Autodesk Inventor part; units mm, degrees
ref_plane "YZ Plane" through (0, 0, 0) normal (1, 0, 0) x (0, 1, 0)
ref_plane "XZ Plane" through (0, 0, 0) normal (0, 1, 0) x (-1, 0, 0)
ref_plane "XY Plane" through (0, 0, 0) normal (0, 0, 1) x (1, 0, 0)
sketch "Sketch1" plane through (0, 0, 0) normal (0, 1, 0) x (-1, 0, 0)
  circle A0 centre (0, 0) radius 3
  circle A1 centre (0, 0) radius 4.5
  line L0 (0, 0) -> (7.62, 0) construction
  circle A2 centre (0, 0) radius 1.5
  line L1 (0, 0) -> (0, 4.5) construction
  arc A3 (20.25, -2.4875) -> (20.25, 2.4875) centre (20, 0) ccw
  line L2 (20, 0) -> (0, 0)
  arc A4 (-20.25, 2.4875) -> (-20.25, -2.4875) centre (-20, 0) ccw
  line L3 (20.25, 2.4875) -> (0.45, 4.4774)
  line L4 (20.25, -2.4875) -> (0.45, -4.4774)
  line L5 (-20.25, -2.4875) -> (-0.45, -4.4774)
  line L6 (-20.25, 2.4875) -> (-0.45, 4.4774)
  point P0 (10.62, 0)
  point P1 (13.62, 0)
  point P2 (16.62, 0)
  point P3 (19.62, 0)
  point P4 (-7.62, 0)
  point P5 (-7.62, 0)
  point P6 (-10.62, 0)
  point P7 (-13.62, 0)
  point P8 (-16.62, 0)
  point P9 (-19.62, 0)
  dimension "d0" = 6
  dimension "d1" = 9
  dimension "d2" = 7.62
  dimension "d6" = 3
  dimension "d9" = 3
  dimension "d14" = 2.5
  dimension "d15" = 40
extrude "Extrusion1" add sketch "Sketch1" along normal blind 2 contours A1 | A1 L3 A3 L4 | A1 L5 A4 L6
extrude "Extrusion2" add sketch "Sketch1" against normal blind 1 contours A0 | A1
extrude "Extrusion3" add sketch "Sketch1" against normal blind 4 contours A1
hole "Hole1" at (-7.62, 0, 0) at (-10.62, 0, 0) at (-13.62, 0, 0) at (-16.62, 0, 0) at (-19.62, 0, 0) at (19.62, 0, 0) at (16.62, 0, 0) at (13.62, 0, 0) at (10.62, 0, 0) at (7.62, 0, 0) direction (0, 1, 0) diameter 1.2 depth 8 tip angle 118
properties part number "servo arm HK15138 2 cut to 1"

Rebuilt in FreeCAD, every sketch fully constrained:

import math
import FreeCAD as App
import Part
import Sketcher
from FreeCAD import Vector
Q = App.Units.Quantity

doc = App.newDocument("Part")
body = doc.addObject("PartDesign::Body", "Body")

# Sketch on XZ plane
sketch1 = body.newObject("Sketcher::SketchObject", "Sketch")
sketch1.AttachmentSupport = (doc.getObject("XZ_Plane"), [""])
sketch1.MapMode = "FlatFace"
sketch1.addGeometry(Part.ArcOfCircle(Part.Circle(Vector(0, 0, 0), Vector(0, 0, 1), 4.5), math.radians(-95.739226), math.radians(-84.260774)), False)
sketch1.addGeometry(Part.LineSegment(Vector(-0.45, -4.4774, 0), Vector(-20.25, -2.4875, 0)), False)
sketch1.addGeometry(Part.ArcOfCircle(Part.Circle(Vector(-20, 0, 0), Vector(0, 0, 1), 2.500031), math.radians(95.739098), math.radians(264.260902)), False)
sketch1.addGeometry(Part.LineSegment(Vector(-20.25, 2.4875, 0), Vector(-0.45, 4.4774, 0)), False)
sketch1.addGeometry(Part.ArcOfCircle(Part.Circle(Vector(0, 0, 0), Vector(0, 0, 1), 4.5), math.radians(84.260774), math.radians(95.739226)), False)
sketch1.addGeometry(Part.LineSegment(Vector(0.45, 4.4774, 0), Vector(20.25, 2.4875, 0)), False)
sketch1.addGeometry(Part.ArcOfCircle(Part.Circle(Vector(20, 0, 0), Vector(0, 0, 1), 2.500031), math.radians(-84.260902), math.radians(84.260902)), False)
sketch1.addGeometry(Part.LineSegment(Vector(20.25, -2.4875, 0), Vector(0.45, -4.4774, 0)), False)
sketch1.addGeometry(Part.Circle(Vector(0, 0, 0), Vector(0, 0, 1), 3), False)
sketch1.addConstraint(Sketcher.Constraint("Tangent", 0, 1, 1, 1))
sketch1.addConstraint(Sketcher.Constraint("Tangent", 1, 2, 2, 2))
sketch1.addConstraint(Sketcher.Constraint("Tangent", 2, 1, 3, 1))
sketch1.addConstraint(Sketcher.Constraint("Tangent", 3, 2, 4, 2))
sketch1.addConstraint(Sketcher.Constraint("Tangent", 4, 1, 5, 1))
sketch1.addConstraint(Sketcher.Constraint("Tangent", 5, 2, 6, 2))
sketch1.addConstraint(Sketcher.Constraint("Tangent", 6, 1, 7, 1))
sketch1.addConstraint(Sketcher.Constraint("Tangent", 7, 2, 0, 2))
sketch1.addConstraint(Sketcher.Constraint("Coincident", 0, 3, -1, 1))
sketch1.addConstraint(Sketcher.Constraint("Coincident", 4, 3, -1, 1))
sketch1.addConstraint(Sketcher.Constraint("Coincident", 8, 3, -1, 1))
sketch1.addConstraint(Sketcher.Constraint("Equal", 0, 4))
sketch1.addConstraint(Sketcher.Constraint("Equal", 2, 6))
sketch1.addConstraint(Sketcher.Constraint("Symmetric", 2, 3, 6, 3, -1, 1))
sketch1.addConstraint(Sketcher.Constraint("PointOnObject", 2, 3, -1))
sketch1.addConstraint(Sketcher.Constraint("Diameter", 8, Q("6 mm")))
sketch1.addConstraint(Sketcher.Constraint("Radius", 0, Q("4.5 mm")))
sketch1.addConstraint(Sketcher.Constraint("Radius", 2, Q("2.5 mm")))
sketch1.addConstraint(Sketcher.Constraint("DistanceX", 2, 3, 6, 3, Q("40 mm")))
pad1 = body.newObject("PartDesign::Pad", "Pad")
pad1.Profile = sketch1
pad1.Length = 2
pad1.Reversed = True

# Sketch on XZ plane
sketch2 = body.newObject("Sketcher::SketchObject", "Sketch001")
sketch2.AttachmentSupport = (doc.getObject("XZ_Plane"), [""])
sketch2.MapMode = "FlatFace"
sketch2.addGeometry(Part.Circle(Vector(0, 0, 0), Vector(0, 0, 1), 4.5), False)
sketch2.addGeometry(Part.Circle(Vector(0, 0, 0), Vector(0, 0, 1), 1.5), False)
sketch2.addConstraint(Sketcher.Constraint("Coincident", 0, 3, -1, 1))
sketch2.addConstraint(Sketcher.Constraint("Coincident", 1, 3, -1, 1))
sketch2.addConstraint(Sketcher.Constraint("Diameter", 0, Q("9 mm")))
sketch2.addConstraint(Sketcher.Constraint("Diameter", 1, Q("3 mm")))
pad2 = body.newObject("PartDesign::Pad", "Pad001")
pad2.Profile = sketch2
pad2.Length = 1

# Sketch on XZ plane
sketch3 = body.newObject("Sketcher::SketchObject", "Sketch002")
sketch3.AttachmentSupport = (doc.getObject("XZ_Plane"), [""])
sketch3.MapMode = "FlatFace"
sketch3.addGeometry(Part.Circle(Vector(0, 0, 0), Vector(0, 0, 1), 4.5), False)
sketch3.addGeometry(Part.Circle(Vector(0, 0, 0), Vector(0, 0, 1), 3), False)
sketch3.addConstraint(Sketcher.Constraint("Coincident", 0, 3, -1, 1))
sketch3.addConstraint(Sketcher.Constraint("Coincident", 1, 3, -1, 1))
sketch3.addConstraint(Sketcher.Constraint("Diameter", 0, Q("9 mm")))
sketch3.addConstraint(Sketcher.Constraint("Diameter", 1, Q("6 mm")))
pad3 = body.newObject("PartDesign::Pad", "Pad002")
pad3.Profile = sketch3
pad3.Length = 4

# Sketch on XZ plane
sketch4 = body.newObject("Sketcher::SketchObject", "Sketch003")
sketch4.AttachmentSupport = (doc.getObject("XZ_Plane"), [""])
sketch4.MapMode = "FlatFace"
sketch4.addGeometry(Part.Circle(Vector(-7.62, 0, 0), Vector(0, 0, 1), 0.6), False)
sketch4.addGeometry(Part.Circle(Vector(-10.62, 0, 0), Vector(0, 0, 1), 0.6), False)
sketch4.addGeometry(Part.Circle(Vector(-13.62, 0, 0), Vector(0, 0, 1), 0.6), False)
sketch4.addGeometry(Part.Circle(Vector(-16.62, 0, 0), Vector(0, 0, 1), 0.6), False)
sketch4.addGeometry(Part.Circle(Vector(-19.62, 0, 0), Vector(0, 0, 1), 0.6), False)
sketch4.addGeometry(Part.Circle(Vector(19.62, 0, 0), Vector(0, 0, 1), 0.6), False)
sketch4.addGeometry(Part.Circle(Vector(16.62, 0, 0), Vector(0, 0, 1), 0.6), False)
sketch4.addGeometry(Part.Circle(Vector(13.62, 0, 0), Vector(0, 0, 1), 0.6), False)
sketch4.addGeometry(Part.Circle(Vector(10.62, 0, 0), Vector(0, 0, 1), 0.6), False)
sketch4.addGeometry(Part.Circle(Vector(7.62, 0, 0), Vector(0, 0, 1), 0.6), False)
sketch4.addConstraint(Sketcher.Constraint("Equal", 0, 1))
sketch4.addConstraint(Sketcher.Constraint("Equal", 1, 2))
sketch4.addConstraint(Sketcher.Constraint("Equal", 2, 3))
sketch4.addConstraint(Sketcher.Constraint("Equal", 3, 4))
sketch4.addConstraint(Sketcher.Constraint("Equal", 4, 5))
sketch4.addConstraint(Sketcher.Constraint("Equal", 5, 6))
sketch4.addConstraint(Sketcher.Constraint("Equal", 6, 7))
sketch4.addConstraint(Sketcher.Constraint("Equal", 7, 8))
sketch4.addConstraint(Sketcher.Constraint("Equal", 8, 9))
sketch4.addConstraint(Sketcher.Constraint("Symmetric", 4, 3, 5, 3, -1, 1))
sketch4.addConstraint(Sketcher.Constraint("Symmetric", 3, 3, 6, 3, -1, 1))
sketch4.addConstraint(Sketcher.Constraint("Symmetric", 2, 3, 7, 3, -1, 1))
sketch4.addConstraint(Sketcher.Constraint("Symmetric", 1, 3, 8, 3, -1, 1))
sketch4.addConstraint(Sketcher.Constraint("Symmetric", 0, 3, 9, 3, -1, 1))
sketch4.addConstraint(Sketcher.Constraint("PointOnObject", 0, 3, -1))
sketch4.addConstraint(Sketcher.Constraint("PointOnObject", 1, 3, -1))
sketch4.addConstraint(Sketcher.Constraint("PointOnObject", 2, 3, -1))
sketch4.addConstraint(Sketcher.Constraint("PointOnObject", 3, 3, -1))
sketch4.addConstraint(Sketcher.Constraint("PointOnObject", 4, 3, -1))
sketch4.addConstraint(Sketcher.Constraint("Diameter", 0, Q("1.2 mm")))
sketch4.addConstraint(Sketcher.Constraint("DistanceX", 1, 3, 0, 3, Q("3 mm")))
sketch4.addConstraint(Sketcher.Constraint("DistanceX", 2, 3, 1, 3, Q("3 mm")))
sketch4.addConstraint(Sketcher.Constraint("DistanceX", 3, 3, 2, 3, Q("3 mm")))
sketch4.addConstraint(Sketcher.Constraint("DistanceX", 4, 3, 3, 3, Q("3 mm")))
sketch4.addConstraint(Sketcher.Constraint("DistanceX", 0, 3, -1, 1, Q("7.62 mm")))
doc.recompute()
hole = body.newObject("PartDesign::Hole", "Hole")
hole.Profile = sketch4
hole.ThreadType = "None"
hole.Diameter = 1.2
hole.DepthType = "Dimension"
hole.Depth = 8
hole.DrillPoint = "Angled"
hole.DrillPointAngle = 118

doc.recompute()
